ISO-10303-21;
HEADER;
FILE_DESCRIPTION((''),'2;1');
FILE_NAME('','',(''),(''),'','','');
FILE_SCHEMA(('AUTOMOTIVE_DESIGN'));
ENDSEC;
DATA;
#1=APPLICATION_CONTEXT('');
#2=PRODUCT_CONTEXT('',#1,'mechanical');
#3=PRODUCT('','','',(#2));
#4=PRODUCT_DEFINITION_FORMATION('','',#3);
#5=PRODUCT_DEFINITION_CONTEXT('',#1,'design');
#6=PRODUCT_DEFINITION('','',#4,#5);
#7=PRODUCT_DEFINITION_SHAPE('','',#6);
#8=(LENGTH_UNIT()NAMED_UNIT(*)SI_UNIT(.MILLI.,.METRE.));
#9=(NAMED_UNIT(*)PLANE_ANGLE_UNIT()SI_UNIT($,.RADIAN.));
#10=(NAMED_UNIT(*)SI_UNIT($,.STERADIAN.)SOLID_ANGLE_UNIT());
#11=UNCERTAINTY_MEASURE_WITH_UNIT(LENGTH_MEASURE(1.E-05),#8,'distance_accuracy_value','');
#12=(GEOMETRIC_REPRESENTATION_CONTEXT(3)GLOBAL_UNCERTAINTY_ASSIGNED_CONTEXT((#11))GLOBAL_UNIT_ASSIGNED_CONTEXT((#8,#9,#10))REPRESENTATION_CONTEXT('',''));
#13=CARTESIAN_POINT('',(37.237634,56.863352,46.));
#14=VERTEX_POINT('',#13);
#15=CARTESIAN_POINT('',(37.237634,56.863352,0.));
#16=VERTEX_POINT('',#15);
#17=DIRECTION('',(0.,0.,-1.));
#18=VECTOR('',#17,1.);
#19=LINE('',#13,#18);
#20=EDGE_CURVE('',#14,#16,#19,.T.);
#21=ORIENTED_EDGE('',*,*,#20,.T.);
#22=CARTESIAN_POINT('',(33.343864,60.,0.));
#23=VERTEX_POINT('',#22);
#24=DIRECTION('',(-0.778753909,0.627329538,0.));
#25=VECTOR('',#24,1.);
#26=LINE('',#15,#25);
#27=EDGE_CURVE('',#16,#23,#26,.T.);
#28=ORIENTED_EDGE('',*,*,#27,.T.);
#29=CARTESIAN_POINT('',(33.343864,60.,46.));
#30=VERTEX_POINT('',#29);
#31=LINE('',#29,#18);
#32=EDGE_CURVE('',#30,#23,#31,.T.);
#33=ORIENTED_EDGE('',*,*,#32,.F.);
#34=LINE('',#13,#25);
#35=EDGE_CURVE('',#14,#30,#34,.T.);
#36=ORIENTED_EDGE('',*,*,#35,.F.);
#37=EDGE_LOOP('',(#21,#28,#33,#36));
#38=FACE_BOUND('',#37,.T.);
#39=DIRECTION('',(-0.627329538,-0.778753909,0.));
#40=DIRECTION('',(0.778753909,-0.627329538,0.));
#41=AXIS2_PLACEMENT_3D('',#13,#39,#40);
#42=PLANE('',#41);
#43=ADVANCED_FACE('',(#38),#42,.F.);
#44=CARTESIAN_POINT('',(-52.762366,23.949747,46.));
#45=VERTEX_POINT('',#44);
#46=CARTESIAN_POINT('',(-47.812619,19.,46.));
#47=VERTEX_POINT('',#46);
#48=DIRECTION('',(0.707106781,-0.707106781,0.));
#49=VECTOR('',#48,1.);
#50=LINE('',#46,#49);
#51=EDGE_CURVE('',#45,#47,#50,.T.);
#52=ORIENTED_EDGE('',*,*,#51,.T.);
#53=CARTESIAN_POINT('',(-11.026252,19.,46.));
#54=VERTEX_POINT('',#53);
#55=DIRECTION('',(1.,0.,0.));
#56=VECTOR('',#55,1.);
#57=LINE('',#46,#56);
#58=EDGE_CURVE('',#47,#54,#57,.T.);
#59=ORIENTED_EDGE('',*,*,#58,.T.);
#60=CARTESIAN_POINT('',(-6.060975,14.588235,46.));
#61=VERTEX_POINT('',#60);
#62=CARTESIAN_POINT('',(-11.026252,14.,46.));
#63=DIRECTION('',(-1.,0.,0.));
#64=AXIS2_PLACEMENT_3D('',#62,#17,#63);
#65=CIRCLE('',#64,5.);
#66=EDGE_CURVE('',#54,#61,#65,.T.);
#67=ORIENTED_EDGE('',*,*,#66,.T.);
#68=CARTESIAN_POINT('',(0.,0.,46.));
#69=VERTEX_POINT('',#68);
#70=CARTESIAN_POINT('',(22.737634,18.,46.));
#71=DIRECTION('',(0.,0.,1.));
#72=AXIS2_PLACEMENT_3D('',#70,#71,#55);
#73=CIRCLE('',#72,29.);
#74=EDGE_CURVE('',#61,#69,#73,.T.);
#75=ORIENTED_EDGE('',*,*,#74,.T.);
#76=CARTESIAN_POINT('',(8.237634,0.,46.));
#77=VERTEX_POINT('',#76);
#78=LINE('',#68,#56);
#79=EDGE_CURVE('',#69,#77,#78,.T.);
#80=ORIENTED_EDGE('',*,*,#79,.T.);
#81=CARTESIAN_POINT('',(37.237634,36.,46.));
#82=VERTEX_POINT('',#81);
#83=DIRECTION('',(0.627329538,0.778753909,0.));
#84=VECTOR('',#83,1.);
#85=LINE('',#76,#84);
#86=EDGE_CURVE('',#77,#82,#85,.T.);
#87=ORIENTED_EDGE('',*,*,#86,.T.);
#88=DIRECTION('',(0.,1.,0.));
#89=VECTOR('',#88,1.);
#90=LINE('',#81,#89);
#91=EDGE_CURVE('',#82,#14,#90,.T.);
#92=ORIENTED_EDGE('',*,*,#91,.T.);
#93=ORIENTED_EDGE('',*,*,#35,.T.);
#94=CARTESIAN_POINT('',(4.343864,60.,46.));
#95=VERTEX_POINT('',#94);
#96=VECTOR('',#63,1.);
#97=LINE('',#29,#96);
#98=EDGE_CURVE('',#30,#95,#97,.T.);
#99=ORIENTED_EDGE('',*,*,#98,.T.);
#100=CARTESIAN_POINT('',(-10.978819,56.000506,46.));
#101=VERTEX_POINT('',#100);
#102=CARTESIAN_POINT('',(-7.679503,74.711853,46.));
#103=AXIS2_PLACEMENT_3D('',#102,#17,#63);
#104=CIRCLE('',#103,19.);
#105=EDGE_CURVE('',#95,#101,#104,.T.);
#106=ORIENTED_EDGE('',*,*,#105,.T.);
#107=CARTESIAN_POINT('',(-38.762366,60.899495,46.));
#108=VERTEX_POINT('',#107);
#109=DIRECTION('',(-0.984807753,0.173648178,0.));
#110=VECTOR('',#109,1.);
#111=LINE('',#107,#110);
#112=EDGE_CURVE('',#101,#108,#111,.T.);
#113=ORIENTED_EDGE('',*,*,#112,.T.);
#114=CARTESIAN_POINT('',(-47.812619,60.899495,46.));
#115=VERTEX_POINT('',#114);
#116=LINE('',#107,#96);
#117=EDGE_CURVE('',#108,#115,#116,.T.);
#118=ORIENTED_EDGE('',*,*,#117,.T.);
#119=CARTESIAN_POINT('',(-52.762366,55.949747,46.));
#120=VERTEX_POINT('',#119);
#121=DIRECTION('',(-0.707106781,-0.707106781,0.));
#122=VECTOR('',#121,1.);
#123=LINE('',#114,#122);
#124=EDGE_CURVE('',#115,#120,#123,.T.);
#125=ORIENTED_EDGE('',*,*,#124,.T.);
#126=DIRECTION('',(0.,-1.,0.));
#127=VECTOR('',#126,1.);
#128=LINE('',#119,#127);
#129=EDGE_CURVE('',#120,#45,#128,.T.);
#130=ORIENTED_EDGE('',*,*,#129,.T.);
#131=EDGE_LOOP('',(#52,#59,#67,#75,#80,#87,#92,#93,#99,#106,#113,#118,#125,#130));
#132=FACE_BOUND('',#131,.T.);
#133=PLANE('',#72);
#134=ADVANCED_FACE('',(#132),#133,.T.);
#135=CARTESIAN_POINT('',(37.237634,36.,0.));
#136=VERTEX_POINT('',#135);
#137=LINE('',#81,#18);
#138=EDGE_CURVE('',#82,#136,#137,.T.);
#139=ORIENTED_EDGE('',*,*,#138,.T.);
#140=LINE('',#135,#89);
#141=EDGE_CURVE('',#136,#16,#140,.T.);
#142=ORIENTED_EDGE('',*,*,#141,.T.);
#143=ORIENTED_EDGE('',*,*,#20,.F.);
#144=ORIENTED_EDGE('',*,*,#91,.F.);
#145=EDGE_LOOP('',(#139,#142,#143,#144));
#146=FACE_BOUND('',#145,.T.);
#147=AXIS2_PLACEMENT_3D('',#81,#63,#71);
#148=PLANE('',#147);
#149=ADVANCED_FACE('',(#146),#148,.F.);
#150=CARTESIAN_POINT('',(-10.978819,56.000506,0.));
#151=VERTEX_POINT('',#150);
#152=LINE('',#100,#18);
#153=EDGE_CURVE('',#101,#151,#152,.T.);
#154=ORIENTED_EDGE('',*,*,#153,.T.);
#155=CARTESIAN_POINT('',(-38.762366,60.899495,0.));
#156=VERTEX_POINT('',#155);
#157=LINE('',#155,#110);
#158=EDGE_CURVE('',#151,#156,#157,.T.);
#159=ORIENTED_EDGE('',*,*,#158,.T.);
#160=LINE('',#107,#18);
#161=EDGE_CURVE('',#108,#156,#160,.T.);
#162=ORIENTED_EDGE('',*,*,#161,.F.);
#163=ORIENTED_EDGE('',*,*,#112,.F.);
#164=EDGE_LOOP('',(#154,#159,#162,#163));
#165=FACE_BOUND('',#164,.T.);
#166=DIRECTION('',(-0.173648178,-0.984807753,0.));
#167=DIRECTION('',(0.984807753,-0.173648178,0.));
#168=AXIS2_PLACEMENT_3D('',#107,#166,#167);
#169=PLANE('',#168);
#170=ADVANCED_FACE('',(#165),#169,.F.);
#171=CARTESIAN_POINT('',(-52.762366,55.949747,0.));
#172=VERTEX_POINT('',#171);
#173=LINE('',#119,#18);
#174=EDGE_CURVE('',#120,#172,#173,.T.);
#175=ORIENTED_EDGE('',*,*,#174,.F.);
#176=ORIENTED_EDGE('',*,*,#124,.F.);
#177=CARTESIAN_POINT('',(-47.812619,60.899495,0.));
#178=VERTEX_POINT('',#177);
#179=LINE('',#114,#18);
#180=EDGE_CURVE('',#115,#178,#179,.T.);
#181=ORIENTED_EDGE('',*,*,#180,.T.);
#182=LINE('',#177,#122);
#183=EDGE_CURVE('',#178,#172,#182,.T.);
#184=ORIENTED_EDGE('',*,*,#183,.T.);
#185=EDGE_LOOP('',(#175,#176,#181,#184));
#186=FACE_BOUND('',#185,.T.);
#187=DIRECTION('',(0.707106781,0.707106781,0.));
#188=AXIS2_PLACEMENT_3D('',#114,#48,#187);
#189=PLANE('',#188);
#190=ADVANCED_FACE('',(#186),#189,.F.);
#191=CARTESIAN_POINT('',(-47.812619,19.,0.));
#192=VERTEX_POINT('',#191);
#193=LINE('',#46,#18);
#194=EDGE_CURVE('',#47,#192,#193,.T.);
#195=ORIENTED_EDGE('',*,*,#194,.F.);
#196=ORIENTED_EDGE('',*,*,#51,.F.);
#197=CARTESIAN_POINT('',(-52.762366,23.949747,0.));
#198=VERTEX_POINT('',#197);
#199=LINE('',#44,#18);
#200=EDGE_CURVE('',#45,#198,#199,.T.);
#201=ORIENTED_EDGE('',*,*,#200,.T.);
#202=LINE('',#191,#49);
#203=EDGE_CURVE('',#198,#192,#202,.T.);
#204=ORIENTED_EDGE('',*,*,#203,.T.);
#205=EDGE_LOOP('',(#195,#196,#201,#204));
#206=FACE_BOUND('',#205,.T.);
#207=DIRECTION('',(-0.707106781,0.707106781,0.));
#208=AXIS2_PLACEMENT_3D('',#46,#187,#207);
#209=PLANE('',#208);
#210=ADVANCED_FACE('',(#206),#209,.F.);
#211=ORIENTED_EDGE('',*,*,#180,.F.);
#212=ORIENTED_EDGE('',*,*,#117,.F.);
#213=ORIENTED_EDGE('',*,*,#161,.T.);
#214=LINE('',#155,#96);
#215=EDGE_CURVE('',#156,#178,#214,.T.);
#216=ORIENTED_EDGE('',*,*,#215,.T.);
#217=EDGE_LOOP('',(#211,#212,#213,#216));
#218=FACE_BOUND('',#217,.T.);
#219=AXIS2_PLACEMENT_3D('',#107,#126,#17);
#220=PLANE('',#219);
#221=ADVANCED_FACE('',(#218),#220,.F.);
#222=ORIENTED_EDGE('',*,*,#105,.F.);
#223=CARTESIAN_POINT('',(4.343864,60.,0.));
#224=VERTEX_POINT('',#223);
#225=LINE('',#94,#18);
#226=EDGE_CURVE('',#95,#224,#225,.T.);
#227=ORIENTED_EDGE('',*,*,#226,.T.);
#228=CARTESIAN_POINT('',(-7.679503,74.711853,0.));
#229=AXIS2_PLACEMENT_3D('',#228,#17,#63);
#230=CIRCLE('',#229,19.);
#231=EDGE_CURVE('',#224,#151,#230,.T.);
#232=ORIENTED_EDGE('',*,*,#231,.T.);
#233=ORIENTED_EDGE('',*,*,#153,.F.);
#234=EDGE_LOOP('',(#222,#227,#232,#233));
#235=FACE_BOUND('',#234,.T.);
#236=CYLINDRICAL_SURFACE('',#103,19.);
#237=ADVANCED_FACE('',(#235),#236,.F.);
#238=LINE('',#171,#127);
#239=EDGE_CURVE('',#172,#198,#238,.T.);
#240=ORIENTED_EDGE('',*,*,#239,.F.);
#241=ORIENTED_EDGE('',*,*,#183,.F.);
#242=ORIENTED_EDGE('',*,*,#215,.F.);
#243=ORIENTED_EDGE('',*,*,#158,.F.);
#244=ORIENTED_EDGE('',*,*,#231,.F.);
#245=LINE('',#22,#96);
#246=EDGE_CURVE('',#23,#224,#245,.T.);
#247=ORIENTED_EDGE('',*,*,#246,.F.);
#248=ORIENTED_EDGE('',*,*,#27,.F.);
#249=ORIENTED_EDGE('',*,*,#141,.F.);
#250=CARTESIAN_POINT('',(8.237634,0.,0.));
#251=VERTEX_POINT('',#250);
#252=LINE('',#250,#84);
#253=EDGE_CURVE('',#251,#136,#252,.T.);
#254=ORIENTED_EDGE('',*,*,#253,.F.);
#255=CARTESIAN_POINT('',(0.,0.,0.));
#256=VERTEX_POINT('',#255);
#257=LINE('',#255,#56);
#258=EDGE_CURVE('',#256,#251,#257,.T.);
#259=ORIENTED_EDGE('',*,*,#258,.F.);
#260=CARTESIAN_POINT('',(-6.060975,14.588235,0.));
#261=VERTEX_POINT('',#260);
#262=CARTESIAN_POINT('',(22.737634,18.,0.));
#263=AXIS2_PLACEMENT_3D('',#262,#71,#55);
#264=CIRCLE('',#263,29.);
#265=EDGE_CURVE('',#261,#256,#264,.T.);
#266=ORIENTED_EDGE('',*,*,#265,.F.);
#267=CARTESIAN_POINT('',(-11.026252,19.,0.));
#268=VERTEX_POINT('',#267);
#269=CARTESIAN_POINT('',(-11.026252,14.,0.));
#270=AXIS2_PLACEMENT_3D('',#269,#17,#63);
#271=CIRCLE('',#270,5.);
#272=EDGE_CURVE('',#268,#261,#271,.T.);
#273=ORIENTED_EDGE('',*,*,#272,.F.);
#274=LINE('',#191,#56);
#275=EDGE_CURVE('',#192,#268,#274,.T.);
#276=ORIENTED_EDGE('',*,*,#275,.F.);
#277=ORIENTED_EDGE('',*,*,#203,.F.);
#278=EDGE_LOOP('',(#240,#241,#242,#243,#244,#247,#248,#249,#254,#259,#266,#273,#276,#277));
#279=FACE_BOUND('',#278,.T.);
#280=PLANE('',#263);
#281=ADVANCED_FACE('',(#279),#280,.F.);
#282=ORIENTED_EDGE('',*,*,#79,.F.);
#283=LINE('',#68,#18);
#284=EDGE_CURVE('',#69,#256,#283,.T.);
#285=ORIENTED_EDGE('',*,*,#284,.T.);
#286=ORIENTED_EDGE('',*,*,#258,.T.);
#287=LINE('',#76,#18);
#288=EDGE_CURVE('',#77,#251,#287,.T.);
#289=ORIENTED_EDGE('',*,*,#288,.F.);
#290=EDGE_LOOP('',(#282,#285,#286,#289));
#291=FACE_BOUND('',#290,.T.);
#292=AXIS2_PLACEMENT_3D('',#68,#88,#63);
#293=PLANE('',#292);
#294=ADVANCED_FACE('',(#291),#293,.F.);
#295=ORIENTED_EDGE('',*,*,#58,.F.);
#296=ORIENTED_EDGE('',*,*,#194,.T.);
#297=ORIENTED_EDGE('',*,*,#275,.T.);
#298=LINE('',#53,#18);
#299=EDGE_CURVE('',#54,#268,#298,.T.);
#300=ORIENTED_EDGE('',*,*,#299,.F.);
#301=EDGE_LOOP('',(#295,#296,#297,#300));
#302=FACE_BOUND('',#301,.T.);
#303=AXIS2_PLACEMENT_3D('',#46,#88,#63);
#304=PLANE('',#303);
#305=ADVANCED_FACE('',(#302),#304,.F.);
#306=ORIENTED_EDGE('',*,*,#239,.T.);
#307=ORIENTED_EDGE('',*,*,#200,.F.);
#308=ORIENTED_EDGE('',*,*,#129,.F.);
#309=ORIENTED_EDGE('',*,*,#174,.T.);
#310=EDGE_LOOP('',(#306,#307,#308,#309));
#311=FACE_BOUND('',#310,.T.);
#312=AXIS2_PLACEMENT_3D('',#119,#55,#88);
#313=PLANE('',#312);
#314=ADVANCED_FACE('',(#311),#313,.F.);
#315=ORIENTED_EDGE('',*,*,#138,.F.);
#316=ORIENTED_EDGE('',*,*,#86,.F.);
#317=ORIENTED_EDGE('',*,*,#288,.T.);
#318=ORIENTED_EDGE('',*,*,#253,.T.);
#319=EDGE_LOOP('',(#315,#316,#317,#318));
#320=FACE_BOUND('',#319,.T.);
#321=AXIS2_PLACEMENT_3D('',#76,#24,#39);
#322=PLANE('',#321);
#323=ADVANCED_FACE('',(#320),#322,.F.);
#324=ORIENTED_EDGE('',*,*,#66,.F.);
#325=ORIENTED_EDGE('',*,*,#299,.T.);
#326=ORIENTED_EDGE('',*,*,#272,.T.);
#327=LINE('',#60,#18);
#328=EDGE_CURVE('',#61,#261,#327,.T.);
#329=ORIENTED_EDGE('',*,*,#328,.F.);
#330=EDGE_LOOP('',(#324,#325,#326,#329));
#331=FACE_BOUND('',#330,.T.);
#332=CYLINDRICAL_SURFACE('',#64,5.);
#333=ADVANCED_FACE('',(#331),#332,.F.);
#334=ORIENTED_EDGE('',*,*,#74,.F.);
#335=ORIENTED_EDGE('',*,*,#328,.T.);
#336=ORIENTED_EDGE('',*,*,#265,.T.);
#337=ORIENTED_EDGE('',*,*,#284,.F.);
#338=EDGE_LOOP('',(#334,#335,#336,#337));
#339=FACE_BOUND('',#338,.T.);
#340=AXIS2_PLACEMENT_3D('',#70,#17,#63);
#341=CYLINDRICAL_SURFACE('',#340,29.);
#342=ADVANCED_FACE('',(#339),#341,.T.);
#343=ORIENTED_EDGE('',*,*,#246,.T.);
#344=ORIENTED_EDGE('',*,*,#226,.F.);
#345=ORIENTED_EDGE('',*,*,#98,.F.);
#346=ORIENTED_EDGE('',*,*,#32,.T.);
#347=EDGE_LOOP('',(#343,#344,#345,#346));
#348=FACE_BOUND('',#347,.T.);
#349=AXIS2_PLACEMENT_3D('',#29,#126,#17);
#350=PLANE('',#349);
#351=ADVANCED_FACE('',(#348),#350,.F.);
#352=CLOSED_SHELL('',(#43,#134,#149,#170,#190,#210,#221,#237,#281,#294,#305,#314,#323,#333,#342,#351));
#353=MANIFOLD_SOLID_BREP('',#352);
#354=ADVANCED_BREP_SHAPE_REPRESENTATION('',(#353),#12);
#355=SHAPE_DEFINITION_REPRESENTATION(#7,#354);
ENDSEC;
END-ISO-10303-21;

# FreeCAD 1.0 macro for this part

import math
import FreeCAD as App
import Part
import Sketcher
Q = App.Units.Quantity

doc = App.newDocument("Part")
body = doc.addObject("PartDesign::Body", "Body")

sketch1 = body.newObject("Sketcher::SketchObject", "Sketch")
sketch1.AttachmentSupport = (doc.getObject("XY_Plane"), [""])
sketch1.MapMode = "FlatFace"
sketch1.addGeometry([
    Part.LineSegment(App.Vector(0, 0, 0), App.Vector(8.237634, 0, 0)),
    Part.LineSegment(App.Vector(8.237634, 0, 0), App.Vector(37.237634, 36, 0)),
    Part.LineSegment(App.Vector(37.237634, 36, 0), App.Vector(37.237634, 56.863352, 0)),
    Part.LineSegment(App.Vector(37.237634, 56.863352, 0), App.Vector(33.343864, 60, 0)),
    Part.LineSegment(App.Vector(33.343864, 60, 0), App.Vector(4.343864, 60, 0)),
    Part.ArcOfCircle(Part.Circle(App.Vector(-7.679503, 74.711853, 0), App.Vector(0, 0, 1), 19), math.radians(-100), math.radians(-50.742341)),
    Part.LineSegment(App.Vector(-10.978819, 56.000506, 0), App.Vector(-38.762366, 60.899495, 0)),
    Part.LineSegment(App.Vector(-38.762366, 60.899495, 0), App.Vector(-47.812619, 60.899495, 0)),
    Part.LineSegment(App.Vector(-47.812619, 60.899495, 0), App.Vector(-52.762366, 55.949747, 0)),
    Part.LineSegment(App.Vector(-52.762366, 55.949747, 0), App.Vector(-52.762366, 23.949747, 0)),
    Part.LineSegment(App.Vector(-52.762366, 23.949747, 0), App.Vector(-47.812619, 19, 0)),
    Part.LineSegment(App.Vector(-47.812619, 19, 0), App.Vector(-11.026252, 19, 0)),
    Part.ArcOfCircle(Part.Circle(App.Vector(-11.026252, 14, 0), App.Vector(0, 0, 1), 5), math.radians(6.756327), math.radians(90)),
    Part.ArcOfCircle(Part.Circle(App.Vector(22.737634, 18, 0), App.Vector(0, 0, 1), 29), math.radians(-173.243673), math.radians(-141.633486)),
], False)
sketch1.addConstraint([
    Sketcher.Constraint("Coincident", 0, 2, 1, 1),
    Sketcher.Constraint("Coincident", 1, 2, 2, 1),
    Sketcher.Constraint("Coincident", 2, 2, 3, 1),
    Sketcher.Constraint("Coincident", 3, 2, 4, 1),
    Sketcher.Constraint("Coincident", 4, 2, 5, 2),
    Sketcher.Constraint("Tangent", 5, 1, 6, 1),
    Sketcher.Constraint("Coincident", 6, 2, 7, 1),
    Sketcher.Constraint("Coincident", 7, 2, 8, 1),
    Sketcher.Constraint("Coincident", 8, 2, 9, 1),
    Sketcher.Constraint("Coincident", 9, 2, 10, 1),
    Sketcher.Constraint("Coincident", 10, 2, 11, 1),
    Sketcher.Constraint("Tangent", 11, 2, 12, 2),
    Sketcher.Constraint("Tangent", 12, 1, 13, 1),
    Sketcher.Constraint("Coincident", 13, 2, 0, 1),
    Sketcher.Constraint("Horizontal", 0),
    Sketcher.Constraint("Vertical", 2),
    Sketcher.Constraint("Horizontal", 4),
    Sketcher.Constraint("Horizontal", 7),
    Sketcher.Constraint("Vertical", 9),
    Sketcher.Constraint("Horizontal", 11),
    Sketcher.Constraint("Coincident", 13, 2, -1, 1),
    Sketcher.Constraint("Perpendicular", 1, 3),
    Sketcher.Constraint("Perpendicular", 8, 10),
    Sketcher.Constraint("Vertical", 7, 2, 10, 2),
    Sketcher.Constraint("Equal", 8, 10),
    Sketcher.Constraint("Radius", 5, Q("19 mm")),
    Sketcher.Constraint("Radius", 12, Q("5 mm")),
    Sketcher.Constraint("Radius", 13, Q("29 mm")),
    Sketcher.Constraint("DistanceX", 4, 2, 4, 1, Q("29 mm")),
    Sketcher.Constraint("DistanceY", 9, 2, 9, 1, Q("32 mm")),
    Sketcher.Constraint("Angle", 6, Q("170 deg")),
    Sketcher.Constraint("Distance", 3, Q("5 mm")),
    Sketcher.Constraint("Distance", 8, Q("7 mm")),
    Sketcher.Constraint("DistanceY", -1, 1, 12, 3, Q("14 mm")),
    Sketcher.Constraint("DistanceY", -1, 1, 13, 3, Q("18 mm")),
    Sketcher.Constraint("DistanceY", -1, 1, 1, 2, Q("36 mm")),
    Sketcher.Constraint("DistanceY", -1, 1, 3, 2, Q("60 mm")),
    Sketcher.Constraint("DistanceX", 0, 2, 1, 2, Q("29 mm")),
    Sketcher.Constraint("DistanceX", 8, 2, 6, 2, Q("14 mm")),
    Sketcher.Constraint("DistanceX", 0, 2, 13, 3, Q("14.5 mm")),
    Sketcher.Constraint("DistanceY", 2, 2, 5, 3, Q("17.848501 mm")),
])
pad1 = body.newObject("PartDesign::Pad", "Pad")
pad1.Profile = sketch1
pad1.Length = 46

doc.recompute()
